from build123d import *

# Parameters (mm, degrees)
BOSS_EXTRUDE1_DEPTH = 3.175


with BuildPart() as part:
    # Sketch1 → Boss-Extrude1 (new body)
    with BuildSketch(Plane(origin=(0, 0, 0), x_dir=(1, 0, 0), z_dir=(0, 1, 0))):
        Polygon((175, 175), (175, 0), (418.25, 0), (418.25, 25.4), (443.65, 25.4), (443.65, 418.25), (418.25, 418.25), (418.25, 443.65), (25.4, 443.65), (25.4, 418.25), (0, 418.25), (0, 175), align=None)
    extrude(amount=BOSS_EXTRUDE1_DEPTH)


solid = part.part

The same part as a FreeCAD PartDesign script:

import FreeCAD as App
import Part
import Sketcher
from FreeCAD import Vector
Q = App.Units.Quantity


def add_polygon(sketch, points):
    """Adds a closed chain of lines whose ends are joined by coincident constraints."""
    first, n = sketch.GeometryCount, len(points)
    for a, b in zip(points, points[1:] + points[:1]):
        sketch.addGeometry(Part.LineSegment(App.Vector(*a, 0), App.Vector(*b, 0)), False)
    for i in range(n):
        sketch.addConstraint(Sketcher.Constraint("Coincident", first + i, 2, first + (i + 1) % n, 1))

doc = App.newDocument("Part")
params = doc.addObject("Spreadsheet::Sheet", "Params")
for row, (alias, value) in enumerate([
    ("sketch1_width", "1 in"),
    ("pad1_length", "0.125 in"),
], start=1):
    params.set(f"A{row}", alias)
    params.set(f"B{row}", "=" + value)
    params.setAlias(f"B{row}", alias)

body = doc.addObject("PartDesign::Body", "Body")

# Sketch on XZ plane
sketch1 = body.newObject("Sketcher::SketchObject", "Sketch")
sketch1.AttachmentSupport = (doc.getObject("XZ_Plane"), [""])
sketch1.MapMode = "FlatFace"
add_polygon(sketch1, [(175, -175), (175, 0), (418, 0), (418, -25), (444, -25), (444, -418), (418, -418), (418, -444), (25, -444), (25, -418), (0, -418), (0, -175)])  # lines 0-11
sketch1.addConstraint([
    Sketcher.Constraint("Vertical", 0),
    Sketcher.Constraint("Horizontal", 1),
    Sketcher.Constraint("Vertical", 2),
    Sketcher.Constraint("Horizontal", 3),
    Sketcher.Constraint("Vertical", 4),
    Sketcher.Constraint("Horizontal", 5),
    Sketcher.Constraint("Vertical", 6),
    Sketcher.Constraint("Horizontal", 7),
    Sketcher.Constraint("Vertical", 8),
    Sketcher.Constraint("Horizontal", 9),
    Sketcher.Constraint("Vertical", 10),
    Sketcher.Constraint("Horizontal", 11),
    Sketcher.Constraint("PointOnObject", 0, 2, -1),
    Sketcher.Constraint("PointOnObject", 9, 2, -2),
    Sketcher.Constraint("Horizontal", 5, 2, 8, 2),
    Sketcher.Constraint("Vertical", 2, 2, 5, 2),
    Sketcher.Constraint("Equal", 5, 9),
    Sketcher.Constraint("Equal", 11, 0),
    Sketcher.Constraint("Equal", 9, 2),
    Sketcher.Constraint("Equal", 7, 4),
    Sketcher.Constraint("Equal", 2, 6),
    Sketcher.Constraint("DistanceX", 3, 1, 3, 2, Q("1 in")),
    Sketcher.Constraint("DistanceX", 1, 1, 1, 2, Q("243.25 mm")),
    Sketcher.Constraint("DistanceX", 7, 2, 7, 1, Q("392.85 mm")),
])
sketch1.setExpression("Constraints[33]", "Params.sketch1_width")
pad1 = body.newObject("PartDesign::Pad", "Pad")
pad1.Profile = sketch1
pad1.setExpression("Length", "Params.pad1_length")
pad1.Reversed = True

doc.recompute()
